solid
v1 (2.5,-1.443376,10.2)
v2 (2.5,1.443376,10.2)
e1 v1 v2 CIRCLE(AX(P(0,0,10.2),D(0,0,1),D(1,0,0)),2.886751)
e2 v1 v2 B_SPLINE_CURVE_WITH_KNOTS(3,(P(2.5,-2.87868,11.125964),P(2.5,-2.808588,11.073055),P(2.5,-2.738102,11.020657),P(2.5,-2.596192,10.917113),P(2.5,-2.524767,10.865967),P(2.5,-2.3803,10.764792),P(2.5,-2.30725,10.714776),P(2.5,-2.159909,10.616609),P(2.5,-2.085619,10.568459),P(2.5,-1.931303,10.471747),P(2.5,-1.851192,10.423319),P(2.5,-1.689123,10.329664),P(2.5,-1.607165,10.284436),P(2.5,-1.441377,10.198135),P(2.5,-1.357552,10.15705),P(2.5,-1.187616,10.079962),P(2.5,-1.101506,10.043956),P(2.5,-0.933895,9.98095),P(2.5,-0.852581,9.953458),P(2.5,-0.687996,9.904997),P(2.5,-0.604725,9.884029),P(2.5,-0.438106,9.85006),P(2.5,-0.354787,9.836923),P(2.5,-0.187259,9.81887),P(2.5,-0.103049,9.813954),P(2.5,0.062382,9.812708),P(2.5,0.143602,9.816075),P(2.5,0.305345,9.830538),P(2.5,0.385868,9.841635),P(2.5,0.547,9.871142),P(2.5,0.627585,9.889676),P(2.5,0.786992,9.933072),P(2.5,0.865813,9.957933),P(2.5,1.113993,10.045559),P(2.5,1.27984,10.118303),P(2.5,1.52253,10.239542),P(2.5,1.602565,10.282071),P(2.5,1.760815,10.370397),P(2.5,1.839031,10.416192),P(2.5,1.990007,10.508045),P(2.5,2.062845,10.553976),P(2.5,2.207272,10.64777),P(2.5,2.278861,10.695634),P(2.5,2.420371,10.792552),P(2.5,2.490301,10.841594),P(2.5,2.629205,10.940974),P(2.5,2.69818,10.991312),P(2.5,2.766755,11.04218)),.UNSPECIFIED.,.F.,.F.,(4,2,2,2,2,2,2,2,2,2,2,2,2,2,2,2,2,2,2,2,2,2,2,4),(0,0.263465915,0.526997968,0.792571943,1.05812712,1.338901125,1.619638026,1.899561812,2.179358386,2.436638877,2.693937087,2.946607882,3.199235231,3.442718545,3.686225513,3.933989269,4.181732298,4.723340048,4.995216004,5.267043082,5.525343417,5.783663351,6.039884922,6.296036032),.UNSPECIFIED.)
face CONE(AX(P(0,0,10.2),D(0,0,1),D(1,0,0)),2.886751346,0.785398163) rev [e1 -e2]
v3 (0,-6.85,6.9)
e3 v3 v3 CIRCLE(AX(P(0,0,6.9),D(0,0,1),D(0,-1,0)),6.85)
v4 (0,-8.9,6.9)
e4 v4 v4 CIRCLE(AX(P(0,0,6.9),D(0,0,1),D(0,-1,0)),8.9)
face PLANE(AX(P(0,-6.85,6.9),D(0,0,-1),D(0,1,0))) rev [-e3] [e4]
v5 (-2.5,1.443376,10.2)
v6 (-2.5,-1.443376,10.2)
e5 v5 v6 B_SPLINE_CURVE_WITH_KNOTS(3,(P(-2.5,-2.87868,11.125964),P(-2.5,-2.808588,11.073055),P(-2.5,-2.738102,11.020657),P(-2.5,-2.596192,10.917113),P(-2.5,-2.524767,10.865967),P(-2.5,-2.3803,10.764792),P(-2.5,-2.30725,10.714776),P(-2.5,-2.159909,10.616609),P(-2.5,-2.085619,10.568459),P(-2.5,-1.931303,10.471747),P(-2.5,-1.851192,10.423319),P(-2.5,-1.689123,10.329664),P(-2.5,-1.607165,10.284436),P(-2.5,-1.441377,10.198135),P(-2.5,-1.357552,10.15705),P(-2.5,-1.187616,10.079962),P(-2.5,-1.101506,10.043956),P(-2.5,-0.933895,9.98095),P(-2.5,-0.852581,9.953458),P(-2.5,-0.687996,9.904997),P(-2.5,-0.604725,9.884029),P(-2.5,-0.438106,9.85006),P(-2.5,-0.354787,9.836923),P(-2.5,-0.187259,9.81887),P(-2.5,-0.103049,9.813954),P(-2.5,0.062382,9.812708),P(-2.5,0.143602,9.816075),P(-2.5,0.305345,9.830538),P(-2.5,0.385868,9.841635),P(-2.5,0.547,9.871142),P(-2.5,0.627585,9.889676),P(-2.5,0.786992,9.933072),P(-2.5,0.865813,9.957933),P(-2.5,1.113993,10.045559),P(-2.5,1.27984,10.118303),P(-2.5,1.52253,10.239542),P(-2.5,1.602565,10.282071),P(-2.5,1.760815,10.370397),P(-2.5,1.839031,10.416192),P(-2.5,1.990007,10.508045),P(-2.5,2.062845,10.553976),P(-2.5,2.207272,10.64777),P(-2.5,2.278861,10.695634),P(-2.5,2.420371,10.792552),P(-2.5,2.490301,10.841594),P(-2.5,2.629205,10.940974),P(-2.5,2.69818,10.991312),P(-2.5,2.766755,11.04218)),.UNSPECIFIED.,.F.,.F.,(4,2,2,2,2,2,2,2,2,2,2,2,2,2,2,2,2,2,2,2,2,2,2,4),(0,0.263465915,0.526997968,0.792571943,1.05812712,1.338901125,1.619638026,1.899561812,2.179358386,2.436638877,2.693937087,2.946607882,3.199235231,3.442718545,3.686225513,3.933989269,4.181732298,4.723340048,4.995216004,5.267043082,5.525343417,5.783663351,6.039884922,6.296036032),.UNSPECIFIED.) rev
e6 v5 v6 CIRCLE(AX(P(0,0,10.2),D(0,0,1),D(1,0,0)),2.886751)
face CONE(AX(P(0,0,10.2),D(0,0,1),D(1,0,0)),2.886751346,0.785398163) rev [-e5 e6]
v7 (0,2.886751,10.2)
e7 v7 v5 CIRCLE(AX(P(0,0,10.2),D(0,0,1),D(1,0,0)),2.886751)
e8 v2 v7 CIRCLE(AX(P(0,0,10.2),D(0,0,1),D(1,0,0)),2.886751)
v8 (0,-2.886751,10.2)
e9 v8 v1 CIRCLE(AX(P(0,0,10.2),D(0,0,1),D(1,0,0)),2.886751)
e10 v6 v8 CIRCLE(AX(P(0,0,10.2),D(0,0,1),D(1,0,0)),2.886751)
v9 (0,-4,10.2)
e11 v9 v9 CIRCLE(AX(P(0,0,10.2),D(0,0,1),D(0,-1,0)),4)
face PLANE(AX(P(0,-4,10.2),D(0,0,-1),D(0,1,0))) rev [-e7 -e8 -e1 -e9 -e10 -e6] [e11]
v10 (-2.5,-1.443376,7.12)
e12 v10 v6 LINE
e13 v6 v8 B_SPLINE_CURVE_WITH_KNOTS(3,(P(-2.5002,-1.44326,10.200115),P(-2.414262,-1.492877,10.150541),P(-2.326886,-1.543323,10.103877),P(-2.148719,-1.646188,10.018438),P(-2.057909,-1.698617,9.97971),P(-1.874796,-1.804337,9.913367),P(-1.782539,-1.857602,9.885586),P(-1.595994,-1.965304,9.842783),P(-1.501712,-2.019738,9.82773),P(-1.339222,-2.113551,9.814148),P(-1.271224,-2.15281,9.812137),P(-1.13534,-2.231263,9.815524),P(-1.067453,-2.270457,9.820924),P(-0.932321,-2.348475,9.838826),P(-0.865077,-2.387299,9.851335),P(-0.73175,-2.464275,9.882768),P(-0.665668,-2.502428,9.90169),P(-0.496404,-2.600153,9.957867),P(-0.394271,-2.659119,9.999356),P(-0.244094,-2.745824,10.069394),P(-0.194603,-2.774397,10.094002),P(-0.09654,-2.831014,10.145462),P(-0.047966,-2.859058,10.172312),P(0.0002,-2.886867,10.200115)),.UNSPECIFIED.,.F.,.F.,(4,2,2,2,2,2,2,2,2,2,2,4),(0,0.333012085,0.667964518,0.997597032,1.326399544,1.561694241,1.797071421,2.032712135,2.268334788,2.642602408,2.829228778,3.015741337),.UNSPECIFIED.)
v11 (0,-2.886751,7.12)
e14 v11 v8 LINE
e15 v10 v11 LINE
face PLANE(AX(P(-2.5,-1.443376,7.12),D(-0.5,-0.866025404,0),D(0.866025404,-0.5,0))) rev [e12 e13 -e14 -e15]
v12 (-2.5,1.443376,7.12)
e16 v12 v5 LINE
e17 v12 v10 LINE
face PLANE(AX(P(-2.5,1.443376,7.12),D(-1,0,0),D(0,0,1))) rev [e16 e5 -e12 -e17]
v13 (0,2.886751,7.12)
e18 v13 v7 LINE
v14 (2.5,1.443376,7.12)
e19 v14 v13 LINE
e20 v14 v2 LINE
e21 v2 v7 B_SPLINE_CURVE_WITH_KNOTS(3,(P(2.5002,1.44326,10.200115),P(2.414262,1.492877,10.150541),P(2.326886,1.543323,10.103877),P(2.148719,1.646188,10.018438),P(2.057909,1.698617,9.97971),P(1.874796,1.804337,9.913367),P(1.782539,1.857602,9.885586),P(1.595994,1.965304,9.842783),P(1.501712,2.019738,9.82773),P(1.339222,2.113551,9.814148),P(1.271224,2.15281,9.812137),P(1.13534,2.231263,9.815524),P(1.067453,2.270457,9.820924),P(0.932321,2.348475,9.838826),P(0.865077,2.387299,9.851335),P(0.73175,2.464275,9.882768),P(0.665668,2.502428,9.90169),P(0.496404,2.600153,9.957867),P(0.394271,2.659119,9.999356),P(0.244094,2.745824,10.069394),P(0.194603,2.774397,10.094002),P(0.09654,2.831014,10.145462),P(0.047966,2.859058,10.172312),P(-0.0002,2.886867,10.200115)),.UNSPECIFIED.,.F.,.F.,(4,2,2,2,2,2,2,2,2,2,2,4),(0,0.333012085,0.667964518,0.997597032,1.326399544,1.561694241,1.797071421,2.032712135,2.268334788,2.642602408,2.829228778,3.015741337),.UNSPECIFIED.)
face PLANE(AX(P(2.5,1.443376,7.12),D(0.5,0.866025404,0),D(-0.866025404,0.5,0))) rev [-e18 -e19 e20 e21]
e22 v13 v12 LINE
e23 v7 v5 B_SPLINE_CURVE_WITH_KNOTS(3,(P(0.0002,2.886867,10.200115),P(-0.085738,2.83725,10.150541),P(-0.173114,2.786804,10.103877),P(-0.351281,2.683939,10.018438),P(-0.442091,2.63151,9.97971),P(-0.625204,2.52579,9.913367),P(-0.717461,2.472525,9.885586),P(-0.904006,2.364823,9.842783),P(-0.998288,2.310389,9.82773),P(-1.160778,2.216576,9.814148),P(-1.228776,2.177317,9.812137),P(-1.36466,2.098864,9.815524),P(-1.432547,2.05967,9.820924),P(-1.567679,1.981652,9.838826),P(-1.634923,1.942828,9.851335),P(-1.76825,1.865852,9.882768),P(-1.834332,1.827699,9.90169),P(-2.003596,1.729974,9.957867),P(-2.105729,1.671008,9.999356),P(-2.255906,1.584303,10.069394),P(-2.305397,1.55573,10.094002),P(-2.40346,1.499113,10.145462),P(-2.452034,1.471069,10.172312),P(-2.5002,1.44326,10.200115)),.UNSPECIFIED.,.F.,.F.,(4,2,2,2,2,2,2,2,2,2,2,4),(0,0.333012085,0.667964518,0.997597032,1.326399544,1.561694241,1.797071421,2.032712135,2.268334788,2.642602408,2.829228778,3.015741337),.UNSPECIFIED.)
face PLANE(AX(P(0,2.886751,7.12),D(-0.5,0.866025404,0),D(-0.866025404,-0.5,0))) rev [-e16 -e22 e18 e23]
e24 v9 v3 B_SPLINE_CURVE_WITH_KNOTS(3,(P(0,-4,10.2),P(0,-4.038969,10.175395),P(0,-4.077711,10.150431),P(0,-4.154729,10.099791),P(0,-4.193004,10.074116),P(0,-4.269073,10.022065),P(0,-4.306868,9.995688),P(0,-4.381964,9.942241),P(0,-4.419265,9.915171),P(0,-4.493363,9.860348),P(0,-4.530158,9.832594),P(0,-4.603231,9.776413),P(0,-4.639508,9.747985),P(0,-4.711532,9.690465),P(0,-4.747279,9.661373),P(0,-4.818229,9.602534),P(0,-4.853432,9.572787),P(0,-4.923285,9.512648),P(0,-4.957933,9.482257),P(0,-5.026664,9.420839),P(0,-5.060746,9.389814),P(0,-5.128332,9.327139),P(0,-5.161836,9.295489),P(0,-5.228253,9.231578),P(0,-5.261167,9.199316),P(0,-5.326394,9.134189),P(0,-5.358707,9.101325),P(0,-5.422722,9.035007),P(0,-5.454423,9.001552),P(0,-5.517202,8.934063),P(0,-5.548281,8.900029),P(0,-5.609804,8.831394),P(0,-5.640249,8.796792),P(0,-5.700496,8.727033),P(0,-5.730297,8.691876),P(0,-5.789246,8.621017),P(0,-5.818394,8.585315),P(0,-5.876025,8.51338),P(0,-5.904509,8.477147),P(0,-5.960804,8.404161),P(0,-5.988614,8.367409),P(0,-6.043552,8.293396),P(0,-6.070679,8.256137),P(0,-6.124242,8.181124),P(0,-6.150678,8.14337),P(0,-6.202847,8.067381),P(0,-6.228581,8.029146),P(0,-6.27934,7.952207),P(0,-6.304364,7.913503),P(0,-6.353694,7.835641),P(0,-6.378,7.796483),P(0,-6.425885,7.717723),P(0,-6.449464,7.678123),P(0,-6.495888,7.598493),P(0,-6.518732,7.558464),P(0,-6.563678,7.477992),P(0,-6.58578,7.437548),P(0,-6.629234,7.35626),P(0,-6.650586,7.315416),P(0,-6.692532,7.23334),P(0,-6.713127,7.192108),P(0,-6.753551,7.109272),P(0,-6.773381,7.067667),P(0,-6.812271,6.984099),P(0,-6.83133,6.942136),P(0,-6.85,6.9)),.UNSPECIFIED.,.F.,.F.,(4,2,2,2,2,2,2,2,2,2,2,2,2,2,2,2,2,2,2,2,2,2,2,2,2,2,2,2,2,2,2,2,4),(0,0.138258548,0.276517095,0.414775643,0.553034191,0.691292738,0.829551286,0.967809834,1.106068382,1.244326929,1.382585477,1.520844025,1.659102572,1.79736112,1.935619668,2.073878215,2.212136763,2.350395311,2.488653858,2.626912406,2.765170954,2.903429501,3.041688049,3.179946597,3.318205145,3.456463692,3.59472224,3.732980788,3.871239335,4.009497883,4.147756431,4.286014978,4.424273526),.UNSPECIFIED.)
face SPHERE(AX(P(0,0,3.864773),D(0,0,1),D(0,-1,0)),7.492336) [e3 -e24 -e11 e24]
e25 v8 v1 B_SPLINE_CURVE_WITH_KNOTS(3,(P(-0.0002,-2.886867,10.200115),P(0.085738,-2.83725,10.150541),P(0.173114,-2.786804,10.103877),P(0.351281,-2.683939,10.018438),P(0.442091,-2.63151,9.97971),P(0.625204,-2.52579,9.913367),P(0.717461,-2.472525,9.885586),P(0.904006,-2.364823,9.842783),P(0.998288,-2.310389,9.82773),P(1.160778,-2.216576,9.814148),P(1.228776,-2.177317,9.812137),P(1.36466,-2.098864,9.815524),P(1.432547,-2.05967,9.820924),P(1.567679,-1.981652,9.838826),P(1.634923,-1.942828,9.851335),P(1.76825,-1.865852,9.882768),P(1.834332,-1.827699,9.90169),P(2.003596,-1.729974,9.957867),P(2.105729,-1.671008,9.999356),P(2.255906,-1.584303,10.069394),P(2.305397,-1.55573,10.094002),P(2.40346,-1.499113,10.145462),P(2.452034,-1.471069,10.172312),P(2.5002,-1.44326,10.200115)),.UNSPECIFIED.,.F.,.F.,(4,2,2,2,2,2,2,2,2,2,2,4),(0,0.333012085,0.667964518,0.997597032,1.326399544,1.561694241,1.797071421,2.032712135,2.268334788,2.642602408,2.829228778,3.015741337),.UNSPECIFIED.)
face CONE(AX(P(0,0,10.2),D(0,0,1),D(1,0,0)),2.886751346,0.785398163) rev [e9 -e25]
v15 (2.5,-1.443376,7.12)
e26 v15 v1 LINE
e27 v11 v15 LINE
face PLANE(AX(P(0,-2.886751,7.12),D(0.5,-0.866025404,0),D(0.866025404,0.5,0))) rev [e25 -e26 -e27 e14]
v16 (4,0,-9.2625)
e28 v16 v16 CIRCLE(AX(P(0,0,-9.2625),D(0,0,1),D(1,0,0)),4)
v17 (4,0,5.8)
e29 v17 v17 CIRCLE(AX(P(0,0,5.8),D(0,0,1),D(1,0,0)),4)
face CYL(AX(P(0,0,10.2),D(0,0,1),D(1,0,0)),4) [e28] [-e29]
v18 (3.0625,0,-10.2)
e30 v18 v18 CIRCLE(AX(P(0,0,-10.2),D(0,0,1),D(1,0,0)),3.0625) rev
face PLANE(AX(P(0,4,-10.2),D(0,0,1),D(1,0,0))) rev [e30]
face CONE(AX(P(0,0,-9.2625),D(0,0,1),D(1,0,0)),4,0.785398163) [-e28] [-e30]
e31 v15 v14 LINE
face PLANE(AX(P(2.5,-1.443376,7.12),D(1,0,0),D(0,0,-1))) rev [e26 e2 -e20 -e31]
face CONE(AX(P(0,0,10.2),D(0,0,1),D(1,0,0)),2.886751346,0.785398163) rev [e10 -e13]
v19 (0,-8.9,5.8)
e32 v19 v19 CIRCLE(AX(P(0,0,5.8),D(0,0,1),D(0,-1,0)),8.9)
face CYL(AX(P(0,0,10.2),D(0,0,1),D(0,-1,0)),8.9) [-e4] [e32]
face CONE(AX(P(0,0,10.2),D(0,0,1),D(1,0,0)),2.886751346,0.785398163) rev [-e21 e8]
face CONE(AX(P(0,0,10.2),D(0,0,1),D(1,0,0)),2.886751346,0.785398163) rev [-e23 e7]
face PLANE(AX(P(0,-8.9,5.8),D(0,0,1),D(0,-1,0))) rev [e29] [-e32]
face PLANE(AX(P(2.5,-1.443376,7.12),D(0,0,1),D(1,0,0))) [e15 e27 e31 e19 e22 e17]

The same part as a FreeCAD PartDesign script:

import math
import FreeCAD as App
import Part
import Sketcher
from FreeCAD import Vector
Q = App.Units.Quantity


def edges_at(feature, points):
    """Names of the edges that pass closest to the given points."""
    edges = feature.Shape.Edges
    near = lambda p: min(range(len(edges)), key=lambda i: edges[i].distToShape(Part.Vertex(*p))[0])
    return sorted({f"Edge{near(p) + 1}" for p in points})

doc = App.newDocument("Part")
params = doc.addObject("Spreadsheet::Sheet", "Params")
for row, (alias, value) in enumerate([
    ("sketch1_width", "4 mm"),
    ("sketch1_height", "16 mm"),
    ("revolution_angle", "360 deg"),
    ("chamfer_size", "0.9375 mm"),
    ("sketch2_width", "4 mm"),
    ("sketch2_width2", "8.9 mm"),
    ("sketch2_height", "4.4 mm"),
    ("sketch2_height2", "1.1 mm"),
    ("sketch2_width3", "2.05 mm"),
    ("revolution2_angle", "360 deg"),
    ("pocket1_length", "3.08 mm"),
    ("groove_angle", "360 deg"),
], start=1):
    params.set(f"A{row}", alias)
    params.set(f"B{row}", "=" + value)
    params.setAlias(f"B{row}", alias)

body = doc.addObject("PartDesign::Body", "Body")

# Sketch on YZ plane
sketch1 = body.newObject("Sketcher::SketchObject", "Sketch")
sketch1.AttachmentSupport = (doc.getObject("YZ_Plane"), [""])
sketch1.MapMode = "FlatFace"
sketch1.addGeometry(Part.LineSegment(Vector(4, 5.8, 0), Vector(0, 5.8, 0)), False)
sketch1.addGeometry(Part.LineSegment(Vector(0, 5.8, 0), Vector(0, -10.2, 0)), False)
sketch1.addGeometry(Part.LineSegment(Vector(0, -10.2, 0), Vector(4, -10.2, 0)), False)
sketch1.addGeometry(Part.LineSegment(Vector(4, -10.2, 0), Vector(4, 5.8, 0)), False)
sketch1.addConstraint(Sketcher.Constraint("Coincident", 0, 2, 1, 1))
sketch1.addConstraint(Sketcher.Constraint("Coincident", 1, 2, 2, 1))
sketch1.addConstraint(Sketcher.Constraint("Coincident", 2, 2, 3, 1))
sketch1.addConstraint(Sketcher.Constraint("Coincident", 3, 2, 0, 1))
sketch1.addConstraint(Sketcher.Constraint("Horizontal", 0))
sketch1.addConstraint(Sketcher.Constraint("Vertical", 1))
sketch1.addConstraint(Sketcher.Constraint("Horizontal", 2))
sketch1.addConstraint(Sketcher.Constraint("Vertical", 3))
sketch1.addConstraint(Sketcher.Constraint("PointOnObject", 0, 2, -2))
sketch1.addConstraint(Sketcher.Constraint("DistanceX", 0, 2, 0, 1, 4.0))
sketch1.addConstraint(Sketcher.Constraint("DistanceY", 1, 2, 1, 1, 16.0))
sketch1.addConstraint(Sketcher.Constraint("DistanceY", -1, 1, 0, 2, 5.8))
sketch1.setExpression("Constraints[9]", "Params.sketch1_width")
sketch1.setExpression("Constraints[10]", "Params.sketch1_height")
revolution = body.newObject("PartDesign::Revolution", "Revolution")
revolution.Profile = sketch1
revolution.ReferenceAxis = (sketch1, ["V_Axis"])
revolution.setExpression("Angle", "Params.revolution_angle")
doc.recompute()

chamfer = body.newObject("PartDesign::Chamfer", "Chamfer")
chamfer.Base = (revolution, edges_at(revolution, [(-4, 0, -10.2)]))
chamfer.setExpression("Size", "Params.chamfer_size")

# Sketch on YZ plane
sketch2 = body.newObject("Sketcher::SketchObject", "Sketch001")
sketch2.AttachmentSupport = (doc.getObject("YZ_Plane"), [""])
sketch2.MapMode = "FlatFace"
sketch2.addGeometry(Part.LineSegment(Vector(0, 10.2, 0), Vector(0, 5.8, 0)), False)
sketch2.addGeometry(Part.LineSegment(Vector(0, 5.8, 0), Vector(8.9, 5.8, 0)), False)
sketch2.addGeometry(Part.LineSegment(Vector(8.9, 5.8, 0), Vector(8.9, 6.9, 0)), False)
sketch2.addGeometry(Part.LineSegment(Vector(8.9, 6.9, 0), Vector(6.8, 6.9, 0)), False)
sketch2.addGeometry(Part.ArcOfCircle(Part.Circle(Vector(0, 3.9, 0), Vector(0, 0, 1), 7.5), math.radians(24), math.radians(58)), False)
sketch2.addGeometry(Part.LineSegment(Vector(4, 10.2, 0), Vector(0, 10.2, 0)), False)
sketch2.addConstraint(Sketcher.Constraint("Coincident", 0, 2, 1, 1))
sketch2.addConstraint(Sketcher.Constraint("Coincident", 1, 2, 2, 1))
sketch2.addConstraint(Sketcher.Constraint("Coincident", 2, 2, 3, 1))
sketch2.addConstraint(Sketcher.Constraint("Coincident", 3, 2, 4, 1))
sketch2.addConstraint(Sketcher.Constraint("Coincident", 4, 2, 5, 1))
sketch2.addConstraint(Sketcher.Constraint("Coincident", 5, 2, 0, 1))
sketch2.addConstraint(Sketcher.Constraint("Vertical", 0))
sketch2.addConstraint(Sketcher.Constraint("Horizontal", 1))
sketch2.addConstraint(Sketcher.Constraint("Vertical", 2))
sketch2.addConstraint(Sketcher.Constraint("Horizontal", 3))
sketch2.addConstraint(Sketcher.Constraint("Horizontal", 5))
sketch2.addConstraint(Sketcher.Constraint("PointOnObject", 4, 3, -2))
sketch2.addConstraint(Sketcher.Constraint("PointOnObject", 0, 2, -2))
sketch2.addConstraint(Sketcher.Constraint("DistanceX", 5, 2, 5, 1, 4.0))
sketch2.addConstraint(Sketcher.Constraint("DistanceX", 1, 1, 1, 2, 8.9))
sketch2.addConstraint(Sketcher.Constraint("DistanceY", 0, 2, 0, 1, 4.4))
sketch2.addConstraint(Sketcher.Constraint("DistanceY", 2, 1, 2, 2, 1.1))
sketch2.addConstraint(Sketcher.Constraint("DistanceX", 3, 2, 3, 1, 2.05))
sketch2.addConstraint(Sketcher.Constraint("DistanceY", -1, 1, 0, 2, 5.8))
sketch2.setExpression("Constraints[13]", "Params.sketch2_width")
sketch2.setExpression("Constraints[14]", "Params.sketch2_width2")
sketch2.setExpression("Constraints[15]", "Params.sketch2_height")
sketch2.setExpression("Constraints[16]", "Params.sketch2_height2")
sketch2.setExpression("Constraints[17]", "Params.sketch2_width3")
revolution2 = body.newObject("PartDesign::Revolution", "Revolution001")
revolution2.Profile = sketch2
revolution2.ReferenceAxis = (sketch2, ["V_Axis"])
revolution2.setExpression("Angle", "Params.revolution2_angle")

# Sketch on XY plane
sketch3 = body.newObject("Sketcher::SketchObject", "Sketch002")
sketch3.AttachmentSupport = (doc.getObject("XY_Plane"), [""])
sketch3.MapMode = "FlatFace"
sketch3.AttachmentOffset = App.Placement(Vector(0, 0, 10.2), App.Rotation())
sketch3.addGeometry(Part.LineSegment(Vector(2.5, -1.4, 0), Vector(2.5, 1.4, 0)), False)
sketch3.addGeometry(Part.LineSegment(Vector(2.5, 1.4, 0), Vector(0, 2.9, 0)), False)
sketch3.addGeometry(Part.LineSegment(Vector(0, 2.9, 0), Vector(-2.5, 1.4, 0)), False)
sketch3.addGeometry(Part.LineSegment(Vector(-2.5, 1.4, 0), Vector(-2.5, -1.4, 0)), False)
sketch3.addGeometry(Part.LineSegment(Vector(-2.5, -1.4, 0), Vector(0, -2.9, 0)), False)
sketch3.addGeometry(Part.LineSegment(Vector(0, -2.9, 0), Vector(2.5, -1.4, 0)), False)
sketch3.addConstraint(Sketcher.Constraint("Coincident", 0, 2, 1, 1))
sketch3.addConstraint(Sketcher.Constraint("Coincident", 1, 2, 2, 1))
sketch3.addConstraint(Sketcher.Constraint("Coincident", 2, 2, 3, 1))
sketch3.addConstraint(Sketcher.Constraint("Coincident", 3, 2, 4, 1))
sketch3.addConstraint(Sketcher.Constraint("Coincident", 4, 2, 5, 1))
sketch3.addConstraint(Sketcher.Constraint("Coincident", 5, 2, 0, 1))
sketch3.addConstraint(Sketcher.Constraint("Vertical", 0))
sketch3.addConstraint(Sketcher.Constraint("Vertical", 3))
sketch3.addConstraint(Sketcher.Constraint("Symmetric", 0, 2, 3, 2, -1, 1))
sketch3.addConstraint(Sketcher.Constraint("Symmetric", 1, 2, 4, 2, -1, 1))
sketch3.addConstraint(Sketcher.Constraint("PointOnObject", 1, 2, -2))
sketch3.addConstraint(Sketcher.Constraint("Parallel", 2, 5))
sketch3.addConstraint(Sketcher.Constraint("Horizontal", 0, 2, 2, 2))
sketch3.addConstraint(Sketcher.Constraint("Angle", 1, Q("150 deg")))
sketch3.addConstraint(Sketcher.Constraint("DistanceX", 2, 2, 0, 2, 5.0))
sketch3.addConstraint(Sketcher.Constraint("DistanceY", 0, 1, 0, 2, 2.886751))
pocket1 = body.newObject("PartDesign::Pocket", "Pocket")
pocket1.Profile = sketch3
pocket1.setExpression("Length", "Params.pocket1_length")

# Sketch on YZ plane
sketch4 = body.newObject("Sketcher::SketchObject", "Sketch003")
sketch4.AttachmentSupport = (doc.getObject("YZ_Plane"), [""])
sketch4.MapMode = "FlatFace"
sketch4.addGeometry(Part.LineSegment(Vector(0, 10.2, 0), Vector(-2.9, 10.2, 0)), False)
sketch4.addGeometry(Part.LineSegment(Vector(-2.9, 10.2, 0), Vector(0, 7.3, 0)), False)
sketch4.addGeometry(Part.LineSegment(Vector(0, 7.3, 0), Vector(0, 10.2, 0)), False)
sketch4.addConstraint(Sketcher.Constraint("Coincident", 0, 2, 1, 1))
sketch4.addConstraint(Sketcher.Constraint("Coincident", 1, 2, 2, 1))
sketch4.addConstraint(Sketcher.Constraint("Coincident", 2, 2, 0, 1))
sketch4.addConstraint(Sketcher.Constraint("Horizontal", 0))
sketch4.addConstraint(Sketcher.Constraint("Vertical", 2))
sketch4.addConstraint(Sketcher.Constraint("PointOnObject", 1, 2, -2))
sketch4.addConstraint(Sketcher.Constraint("Equal", 0, 2))
sketch4.addConstraint(Sketcher.Constraint("DistanceY", -1, 1, 0, 2, 10.2))
sketch4.addConstraint(Sketcher.Constraint("DistanceX", 0, 2, 0, 1, 2.886751))
groove = body.newObject("PartDesign::Groove", "Groove")
groove.Profile = sketch4
groove.ReferenceAxis = (sketch4, ["V_Axis"])
groove.setExpression("Angle", "Params.groove_angle")

doc.recompute()
